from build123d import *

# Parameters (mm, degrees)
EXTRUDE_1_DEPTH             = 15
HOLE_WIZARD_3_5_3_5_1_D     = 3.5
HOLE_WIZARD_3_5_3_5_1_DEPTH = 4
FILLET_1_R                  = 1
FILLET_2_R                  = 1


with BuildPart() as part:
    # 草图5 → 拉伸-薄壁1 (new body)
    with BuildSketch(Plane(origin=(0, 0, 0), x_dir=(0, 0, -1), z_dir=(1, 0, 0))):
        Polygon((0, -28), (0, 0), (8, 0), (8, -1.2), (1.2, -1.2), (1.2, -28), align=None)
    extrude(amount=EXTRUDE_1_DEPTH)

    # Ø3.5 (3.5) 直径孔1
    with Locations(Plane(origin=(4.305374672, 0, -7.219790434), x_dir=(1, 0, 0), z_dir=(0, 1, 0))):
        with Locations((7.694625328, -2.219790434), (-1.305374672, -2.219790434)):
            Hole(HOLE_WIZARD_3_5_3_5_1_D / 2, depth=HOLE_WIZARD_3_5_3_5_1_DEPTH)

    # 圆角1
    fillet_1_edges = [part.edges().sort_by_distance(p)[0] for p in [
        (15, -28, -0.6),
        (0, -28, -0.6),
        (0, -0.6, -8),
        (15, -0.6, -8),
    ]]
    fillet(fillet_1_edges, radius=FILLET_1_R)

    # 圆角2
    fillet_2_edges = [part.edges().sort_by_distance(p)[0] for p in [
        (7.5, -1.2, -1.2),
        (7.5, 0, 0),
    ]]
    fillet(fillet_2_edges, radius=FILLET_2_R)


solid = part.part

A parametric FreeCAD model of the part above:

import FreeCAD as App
import Part
import Sketcher

V = App.Vector
Q = App.Units.Quantity


def edges_at(feature, points):
    """Names of the edges that pass closest to the given points."""
    edges = feature.Shape.Edges
    near = lambda p: min(range(len(edges)), key=lambda i: edges[i].distToShape(Part.Vertex(*p))[0])
    return sorted({f"Edge{near(p) + 1}" for p in points})


def add_polygon(sketch, points):
    """Adds a closed chain of lines whose ends are joined by coincident constraints."""
    first, n = sketch.GeometryCount, len(points)
    for a, b in zip(points, points[1:] + points[:1]):
        sketch.addGeometry(Part.LineSegment(App.Vector(*a, 0), App.Vector(*b, 0)), False)
    for i in range(n):
        sketch.addConstraint(Sketcher.Constraint("Coincident", first + i, 2, first + (i + 1) % n, 1))

doc = App.newDocument("Part")
body = doc.addObject("PartDesign::Body", "Body")

# Sketch on YZ plane
sketch1 = doc.addObject("Sketcher::SketchObject", "Sketch")
body.addObject(sketch1)
sketch1.AttachmentSupport = (doc.YZ_Plane, [""])
sketch1.MapMode = "FlatFace"
add_polygon(sketch1, [(0, 0), (-28, 0), (-28, -1.2), (-1.2, -1.2), (-1.2, -8), (0, -8)])  # lines 0-5
sketch1.addConstraint([
    Sketcher.Constraint("Horizontal", 0),
    Sketcher.Constraint("Vertical", 1),
    Sketcher.Constraint("Horizontal", 2),
    Sketcher.Constraint("Vertical", 3),
    Sketcher.Constraint("Horizontal", 4),
    Sketcher.Constraint("Vertical", 5),
    Sketcher.Constraint("Coincident", 5, 2, -1, 1),
    Sketcher.Constraint("Equal", 4, 1),
    Sketcher.Constraint("DistanceX", 0, 2, 0, 1, Q("28 mm")),
    Sketcher.Constraint("DistanceY", 5, 1, 5, 2, Q("8 mm")),
    Sketcher.Constraint("DistanceX", 2, 1, 2, 2, Q("26.8 mm")),
])
pad1 = doc.addObject("PartDesign::Pad", "Pad")
body.addObject(pad1)
pad1.Profile = sketch1
pad1.Length = 15

# Sketch on XZ plane
sketch2 = doc.addObject("Sketcher::SketchObject", "Sketch001")
body.addObject(sketch2)
sketch2.AttachmentSupport = (doc.XZ_Plane, [""])
sketch2.MapMode = "FlatFace"
sketch2.addGeometry([
    Part.Circle(V(12, -5, 0), V(0, 0, 1), 1.8),
    Part.Circle(V(3, -5, 0), V(0, 0, 1), 1.8),
], False)
sketch2.addConstraint([
    Sketcher.Constraint("Equal", 0, 1),
    Sketcher.Constraint("Horizontal", 0, 3, 1, 3),
    Sketcher.Constraint("Diameter", 0, Q("3.5 mm")),
    Sketcher.Constraint("DistanceX", -1, 1, 0, 3, Q("12 mm")),
    Sketcher.Constraint("DistanceY", 0, 3, -1, 1, Q("5 mm")),
    Sketcher.Constraint("DistanceX", -1, 1, 1, 3, Q("3 mm")),
])
doc.recompute()
hole = doc.addObject("PartDesign::Hole", "Hole")
body.addObject(hole)
hole.Profile = sketch2
hole.ThreadType = "None"
hole.Diameter = 3.5
hole.DepthType = "Dimension"
hole.Depth = 4
hole.DrillPoint = "Flat"
hole.Reversed = True
doc.recompute()

fillet = doc.addObject("PartDesign::Fillet", "Fillet")
body.addObject(fillet)
fillet.Base = (hole, edges_at(hole, [
    (15, -28, -0.6),
    (0, -28, -0.6),
    (0, -0.6, -8),
    (15, -0.6, -8),
]))
fillet.Radius = 1
doc.recompute()

fillet2 = doc.addObject("PartDesign::Fillet", "Fillet001")
body.addObject(fillet2)
fillet2.Base = (fillet, edges_at(fillet, [(7.5, -1.2, -1.2), (7.5, 0, 0)]))
fillet2.Radius = 1

doc.recompute()
